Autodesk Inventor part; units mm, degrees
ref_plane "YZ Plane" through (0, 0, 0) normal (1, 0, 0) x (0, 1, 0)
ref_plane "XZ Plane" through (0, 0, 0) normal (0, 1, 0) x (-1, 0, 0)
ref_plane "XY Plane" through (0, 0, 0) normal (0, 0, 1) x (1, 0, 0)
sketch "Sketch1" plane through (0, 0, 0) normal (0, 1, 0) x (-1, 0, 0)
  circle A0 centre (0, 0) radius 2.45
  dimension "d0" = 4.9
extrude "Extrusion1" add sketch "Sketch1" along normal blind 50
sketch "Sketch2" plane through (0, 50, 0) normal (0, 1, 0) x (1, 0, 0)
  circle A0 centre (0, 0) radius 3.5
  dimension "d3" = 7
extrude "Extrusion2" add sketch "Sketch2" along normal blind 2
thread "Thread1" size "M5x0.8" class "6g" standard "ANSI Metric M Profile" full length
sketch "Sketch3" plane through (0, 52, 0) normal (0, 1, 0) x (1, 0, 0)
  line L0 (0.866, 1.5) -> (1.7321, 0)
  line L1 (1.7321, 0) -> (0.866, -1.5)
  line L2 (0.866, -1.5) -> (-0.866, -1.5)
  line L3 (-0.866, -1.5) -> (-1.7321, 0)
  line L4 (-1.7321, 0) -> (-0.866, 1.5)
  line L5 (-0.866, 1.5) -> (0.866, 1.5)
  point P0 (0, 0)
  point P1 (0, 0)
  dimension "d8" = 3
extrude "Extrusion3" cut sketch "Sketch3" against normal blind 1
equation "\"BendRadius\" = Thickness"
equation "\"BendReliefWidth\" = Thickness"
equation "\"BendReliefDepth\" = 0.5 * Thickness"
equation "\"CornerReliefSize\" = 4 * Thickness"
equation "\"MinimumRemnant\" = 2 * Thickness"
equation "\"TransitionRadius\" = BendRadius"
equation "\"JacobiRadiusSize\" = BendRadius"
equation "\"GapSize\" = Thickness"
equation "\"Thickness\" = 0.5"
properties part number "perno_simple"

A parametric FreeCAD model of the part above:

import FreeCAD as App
import Part
import Sketcher


def add_polygon(sketch, points):
    """Adds a closed chain of lines whose ends are joined by coincident constraints."""
    first, n = sketch.GeometryCount, len(points)
    for a, b in zip(points, points[1:] + points[:1]):
        sketch.addGeometry(Part.LineSegment(App.Vector(*a, 0), App.Vector(*b, 0)), False)
    for i in range(n):
        sketch.addConstraint(Sketcher.Constraint("Coincident", first + i, 2, first + (i + 1) % n, 1))

doc = App.newDocument("Part")
body = doc.addObject("PartDesign::Body", "Body")

# Sketch on XZ plane
sketch1 = body.newObject("Sketcher::SketchObject", "Sketch")
sketch1.AttachmentSupport = (doc.getObject("XZ_Plane"), [""])
sketch1.MapMode = "FlatFace"
sketch1.addGeometry(Part.Circle(App.Vector(0, 0, 0), App.Vector(0, 0, 1), 2.45), False)
sketch1.addConstraint(Sketcher.Constraint("Coincident", 0, 3, -1, 1))
sketch1.addConstraint(Sketcher.Constraint("Diameter", 0, 4.9))
pad1 = body.newObject("PartDesign::Pad", "Pad")
pad1.Profile = sketch1
pad1.Length = 50
pad1.Reversed = True

# Sketch on XZ plane
sketch2 = body.newObject("Sketcher::SketchObject", "Sketch001")
sketch2.AttachmentSupport = (doc.getObject("XZ_Plane"), [""])
sketch2.MapMode = "FlatFace"
sketch2.AttachmentOffset = App.Placement(App.Vector(0, 0, -50), App.Rotation())
sketch2.addGeometry(Part.Circle(App.Vector(0, 0, 0), App.Vector(0, 0, 1), 3.5), False)
sketch2.addConstraint(Sketcher.Constraint("Coincident", 0, 3, -1, 1))
sketch2.addConstraint(Sketcher.Constraint("Diameter", 0, 7.0))
pad2 = body.newObject("PartDesign::Pad", "Pad001")
pad2.Profile = sketch2
pad2.Length = 2
pad2.Reversed = True

# Sketch on XZ plane
sketch3 = body.newObject("Sketcher::SketchObject", "Sketch002")
sketch3.AttachmentSupport = (doc.getObject("XZ_Plane"), [""])
sketch3.MapMode = "FlatFace"
sketch3.AttachmentOffset = App.Placement(App.Vector(0, 0, -52), App.Rotation())
add_polygon(sketch3, [(1.7321, 0), (0.866, -1.5), (-0.866, -1.5), (-1.7321, 0), (-0.866, 1.5), (0.866, 1.5)])  # lines 0-5
sketch3.addConstraint(Sketcher.Constraint("Horizontal", 1))
sketch3.addConstraint(Sketcher.Constraint("Horizontal", 4))
sketch3.addConstraint(Sketcher.Constraint("Symmetric", 0, 2, 3, 2, -1, 1))
sketch3.addConstraint(Sketcher.Constraint("Symmetric", 2, 2, 5, 2, -1, 1))
sketch3.addConstraint(Sketcher.Constraint("PointOnObject", 2, 2, -1))
sketch3.addConstraint(Sketcher.Constraint("Parallel", 2, 5))
sketch3.addConstraint(Sketcher.Constraint("Vertical", 1, 2, 3, 2))
sketch3.addConstraint(Sketcher.Constraint("DistanceY", 1, 2, 3, 2, 3.0))
sketch3.addConstraint(Sketcher.Constraint("DistanceX", 1, 2, 1, 1, 1.732))
sketch3.addConstraint(Sketcher.Constraint("Distance", 0, 1.732))
pocket1 = body.newObject("PartDesign::Pocket", "Pocket")
pocket1.Profile = sketch3
pocket1.Length = 1
pocket1.Reversed = True

doc.recompute()
